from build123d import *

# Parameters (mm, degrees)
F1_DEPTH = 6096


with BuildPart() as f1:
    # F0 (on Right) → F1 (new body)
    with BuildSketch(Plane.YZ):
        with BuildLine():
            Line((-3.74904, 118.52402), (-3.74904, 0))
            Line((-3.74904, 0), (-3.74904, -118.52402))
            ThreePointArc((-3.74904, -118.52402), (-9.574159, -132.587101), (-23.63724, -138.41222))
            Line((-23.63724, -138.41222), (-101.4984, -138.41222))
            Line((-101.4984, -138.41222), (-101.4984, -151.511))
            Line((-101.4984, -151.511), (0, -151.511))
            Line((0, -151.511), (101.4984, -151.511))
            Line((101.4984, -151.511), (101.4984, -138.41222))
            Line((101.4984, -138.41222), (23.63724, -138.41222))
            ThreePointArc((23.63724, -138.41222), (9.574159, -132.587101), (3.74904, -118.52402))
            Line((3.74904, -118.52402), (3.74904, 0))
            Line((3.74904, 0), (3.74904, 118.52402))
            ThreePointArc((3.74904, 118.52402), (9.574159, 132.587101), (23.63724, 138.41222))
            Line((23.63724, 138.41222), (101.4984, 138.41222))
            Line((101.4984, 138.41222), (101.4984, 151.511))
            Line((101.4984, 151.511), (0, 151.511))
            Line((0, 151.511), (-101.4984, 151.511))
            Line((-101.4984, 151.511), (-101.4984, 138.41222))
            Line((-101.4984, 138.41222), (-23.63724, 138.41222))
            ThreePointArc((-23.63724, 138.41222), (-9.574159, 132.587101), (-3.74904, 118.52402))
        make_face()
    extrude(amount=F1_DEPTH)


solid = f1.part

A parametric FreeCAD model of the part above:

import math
import FreeCAD as App
import Part
import Sketcher
from FreeCAD import Vector
Q = App.Units.Quantity

doc = App.newDocument("Part")
body = doc.addObject("PartDesign::Body", "Body")

sketch1 = body.newObject("Sketcher::SketchObject", "Sketch")
sketch1.AttachmentSupport = (doc.getObject("YZ_Plane"), [""])
sketch1.MapMode = "FlatFace"
sketch1.addGeometry(Part.LineSegment(Vector(-4, 119, 0), Vector(-4, -119, 0)), False)
sketch1.addGeometry(Part.ArcOfCircle(Part.Circle(Vector(-24, -119, 0), Vector(0, 0, 1), 20), math.radians(-90), math.radians(0)), False)
sketch1.addGeometry(Part.LineSegment(Vector(-24, -138, 0), Vector(-101, -138, 0)), False)
sketch1.addGeometry(Part.LineSegment(Vector(-101, -138, 0), Vector(-101, -152, 0)), False)
sketch1.addGeometry(Part.LineSegment(Vector(-101, -152, 0), Vector(101, -152, 0)), False)
sketch1.addGeometry(Part.LineSegment(Vector(101, -152, 0), Vector(101, -138, 0)), False)
sketch1.addGeometry(Part.LineSegment(Vector(101, -138, 0), Vector(24, -138, 0)), False)
sketch1.addGeometry(Part.ArcOfCircle(Part.Circle(Vector(24, -119, 0), Vector(0, 0, 1), 20), math.radians(-180), math.radians(-90)), False)
sketch1.addGeometry(Part.LineSegment(Vector(4, -119, 0), Vector(4, 119, 0)), False)
sketch1.addGeometry(Part.ArcOfCircle(Part.Circle(Vector(24, 119, 0), Vector(0, 0, 1), 20), math.radians(90), math.radians(180)), False)
sketch1.addGeometry(Part.LineSegment(Vector(24, 138, 0), Vector(101, 138, 0)), False)
sketch1.addGeometry(Part.LineSegment(Vector(101, 138, 0), Vector(101, 152, 0)), False)
sketch1.addGeometry(Part.LineSegment(Vector(101, 152, 0), Vector(-101, 152, 0)), False)
sketch1.addGeometry(Part.LineSegment(Vector(-101, 152, 0), Vector(-101, 138, 0)), False)
sketch1.addGeometry(Part.LineSegment(Vector(-101, 138, 0), Vector(-24, 138, 0)), False)
sketch1.addGeometry(Part.ArcOfCircle(Part.Circle(Vector(-24, 119, 0), Vector(0, 0, 1), 20), math.radians(0), math.radians(90)), False)
sketch1.addConstraint(Sketcher.Constraint("Tangent", 0, 2, 1, 2))
sketch1.addConstraint(Sketcher.Constraint("Tangent", 1, 1, 2, 1))
sketch1.addConstraint(Sketcher.Constraint("Coincident", 2, 2, 3, 1))
sketch1.addConstraint(Sketcher.Constraint("Coincident", 3, 2, 4, 1))
sketch1.addConstraint(Sketcher.Constraint("Coincident", 4, 2, 5, 1))
sketch1.addConstraint(Sketcher.Constraint("Coincident", 5, 2, 6, 1))
sketch1.addConstraint(Sketcher.Constraint("Tangent", 6, 2, 7, 2))
sketch1.addConstraint(Sketcher.Constraint("Tangent", 7, 1, 8, 1))
sketch1.addConstraint(Sketcher.Constraint("Tangent", 8, 2, 9, 2))
sketch1.addConstraint(Sketcher.Constraint("Tangent", 9, 1, 10, 1))
sketch1.addConstraint(Sketcher.Constraint("Coincident", 10, 2, 11, 1))
sketch1.addConstraint(Sketcher.Constraint("Coincident", 11, 2, 12, 1))
sketch1.addConstraint(Sketcher.Constraint("Coincident", 12, 2, 13, 1))
sketch1.addConstraint(Sketcher.Constraint("Coincident", 13, 2, 14, 1))
sketch1.addConstraint(Sketcher.Constraint("Tangent", 14, 2, 15, 2))
sketch1.addConstraint(Sketcher.Constraint("Tangent", 15, 1, 0, 1))
sketch1.addConstraint(Sketcher.Constraint("Vertical", 0))
sketch1.addConstraint(Sketcher.Constraint("Horizontal", 2))
sketch1.addConstraint(Sketcher.Constraint("Vertical", 3))
sketch1.addConstraint(Sketcher.Constraint("Horizontal", 4))
sketch1.addConstraint(Sketcher.Constraint("Vertical", 5))
sketch1.addConstraint(Sketcher.Constraint("Horizontal", 6))
sketch1.addConstraint(Sketcher.Constraint("Vertical", 8))
sketch1.addConstraint(Sketcher.Constraint("Horizontal", 10))
sketch1.addConstraint(Sketcher.Constraint("Vertical", 11))
sketch1.addConstraint(Sketcher.Constraint("Horizontal", 12))
sketch1.addConstraint(Sketcher.Constraint("Vertical", 13))
sketch1.addConstraint(Sketcher.Constraint("Horizontal", 14))
sketch1.addConstraint(Sketcher.Constraint("Equal", 1, 7))
sketch1.addConstraint(Sketcher.Constraint("Equal", 7, 9))
sketch1.addConstraint(Sketcher.Constraint("Equal", 9, 15))
sketch1.addConstraint(Sketcher.Constraint("Symmetric", 1, 3, 9, 3, -1, 1))
sketch1.addConstraint(Sketcher.Constraint("Symmetric", 3, 2, 11, 2, -1, 1))
sketch1.addConstraint(Sketcher.Constraint("Symmetric", 5, 2, 13, 2, -1, 1))
sketch1.addConstraint(Sketcher.Constraint("Symmetric", 2, 2, 5, 2, -2))
sketch1.addConstraint(Sketcher.Constraint("Radius", 1, Q("0.783 in")))
sketch1.addConstraint(Sketcher.Constraint("DistanceX", 4, 1, 4, 2, Q("7.992 in")))
sketch1.addConstraint(Sketcher.Constraint("DistanceX", 2, 2, 2, 1, Q("3.0654 in")))
sketch1.addConstraint(Sketcher.Constraint("DistanceY", 0, 2, 0, 1, Q("9.3326 in")))
sketch1.addConstraint(Sketcher.Constraint("DistanceY", 3, 2, 3, 1, Q("0.5157 in")))
pad1 = body.newObject("PartDesign::Pad", "Pad")
pad1.Profile = sketch1
pad1.Length = Q("240 in")

doc.recompute()
